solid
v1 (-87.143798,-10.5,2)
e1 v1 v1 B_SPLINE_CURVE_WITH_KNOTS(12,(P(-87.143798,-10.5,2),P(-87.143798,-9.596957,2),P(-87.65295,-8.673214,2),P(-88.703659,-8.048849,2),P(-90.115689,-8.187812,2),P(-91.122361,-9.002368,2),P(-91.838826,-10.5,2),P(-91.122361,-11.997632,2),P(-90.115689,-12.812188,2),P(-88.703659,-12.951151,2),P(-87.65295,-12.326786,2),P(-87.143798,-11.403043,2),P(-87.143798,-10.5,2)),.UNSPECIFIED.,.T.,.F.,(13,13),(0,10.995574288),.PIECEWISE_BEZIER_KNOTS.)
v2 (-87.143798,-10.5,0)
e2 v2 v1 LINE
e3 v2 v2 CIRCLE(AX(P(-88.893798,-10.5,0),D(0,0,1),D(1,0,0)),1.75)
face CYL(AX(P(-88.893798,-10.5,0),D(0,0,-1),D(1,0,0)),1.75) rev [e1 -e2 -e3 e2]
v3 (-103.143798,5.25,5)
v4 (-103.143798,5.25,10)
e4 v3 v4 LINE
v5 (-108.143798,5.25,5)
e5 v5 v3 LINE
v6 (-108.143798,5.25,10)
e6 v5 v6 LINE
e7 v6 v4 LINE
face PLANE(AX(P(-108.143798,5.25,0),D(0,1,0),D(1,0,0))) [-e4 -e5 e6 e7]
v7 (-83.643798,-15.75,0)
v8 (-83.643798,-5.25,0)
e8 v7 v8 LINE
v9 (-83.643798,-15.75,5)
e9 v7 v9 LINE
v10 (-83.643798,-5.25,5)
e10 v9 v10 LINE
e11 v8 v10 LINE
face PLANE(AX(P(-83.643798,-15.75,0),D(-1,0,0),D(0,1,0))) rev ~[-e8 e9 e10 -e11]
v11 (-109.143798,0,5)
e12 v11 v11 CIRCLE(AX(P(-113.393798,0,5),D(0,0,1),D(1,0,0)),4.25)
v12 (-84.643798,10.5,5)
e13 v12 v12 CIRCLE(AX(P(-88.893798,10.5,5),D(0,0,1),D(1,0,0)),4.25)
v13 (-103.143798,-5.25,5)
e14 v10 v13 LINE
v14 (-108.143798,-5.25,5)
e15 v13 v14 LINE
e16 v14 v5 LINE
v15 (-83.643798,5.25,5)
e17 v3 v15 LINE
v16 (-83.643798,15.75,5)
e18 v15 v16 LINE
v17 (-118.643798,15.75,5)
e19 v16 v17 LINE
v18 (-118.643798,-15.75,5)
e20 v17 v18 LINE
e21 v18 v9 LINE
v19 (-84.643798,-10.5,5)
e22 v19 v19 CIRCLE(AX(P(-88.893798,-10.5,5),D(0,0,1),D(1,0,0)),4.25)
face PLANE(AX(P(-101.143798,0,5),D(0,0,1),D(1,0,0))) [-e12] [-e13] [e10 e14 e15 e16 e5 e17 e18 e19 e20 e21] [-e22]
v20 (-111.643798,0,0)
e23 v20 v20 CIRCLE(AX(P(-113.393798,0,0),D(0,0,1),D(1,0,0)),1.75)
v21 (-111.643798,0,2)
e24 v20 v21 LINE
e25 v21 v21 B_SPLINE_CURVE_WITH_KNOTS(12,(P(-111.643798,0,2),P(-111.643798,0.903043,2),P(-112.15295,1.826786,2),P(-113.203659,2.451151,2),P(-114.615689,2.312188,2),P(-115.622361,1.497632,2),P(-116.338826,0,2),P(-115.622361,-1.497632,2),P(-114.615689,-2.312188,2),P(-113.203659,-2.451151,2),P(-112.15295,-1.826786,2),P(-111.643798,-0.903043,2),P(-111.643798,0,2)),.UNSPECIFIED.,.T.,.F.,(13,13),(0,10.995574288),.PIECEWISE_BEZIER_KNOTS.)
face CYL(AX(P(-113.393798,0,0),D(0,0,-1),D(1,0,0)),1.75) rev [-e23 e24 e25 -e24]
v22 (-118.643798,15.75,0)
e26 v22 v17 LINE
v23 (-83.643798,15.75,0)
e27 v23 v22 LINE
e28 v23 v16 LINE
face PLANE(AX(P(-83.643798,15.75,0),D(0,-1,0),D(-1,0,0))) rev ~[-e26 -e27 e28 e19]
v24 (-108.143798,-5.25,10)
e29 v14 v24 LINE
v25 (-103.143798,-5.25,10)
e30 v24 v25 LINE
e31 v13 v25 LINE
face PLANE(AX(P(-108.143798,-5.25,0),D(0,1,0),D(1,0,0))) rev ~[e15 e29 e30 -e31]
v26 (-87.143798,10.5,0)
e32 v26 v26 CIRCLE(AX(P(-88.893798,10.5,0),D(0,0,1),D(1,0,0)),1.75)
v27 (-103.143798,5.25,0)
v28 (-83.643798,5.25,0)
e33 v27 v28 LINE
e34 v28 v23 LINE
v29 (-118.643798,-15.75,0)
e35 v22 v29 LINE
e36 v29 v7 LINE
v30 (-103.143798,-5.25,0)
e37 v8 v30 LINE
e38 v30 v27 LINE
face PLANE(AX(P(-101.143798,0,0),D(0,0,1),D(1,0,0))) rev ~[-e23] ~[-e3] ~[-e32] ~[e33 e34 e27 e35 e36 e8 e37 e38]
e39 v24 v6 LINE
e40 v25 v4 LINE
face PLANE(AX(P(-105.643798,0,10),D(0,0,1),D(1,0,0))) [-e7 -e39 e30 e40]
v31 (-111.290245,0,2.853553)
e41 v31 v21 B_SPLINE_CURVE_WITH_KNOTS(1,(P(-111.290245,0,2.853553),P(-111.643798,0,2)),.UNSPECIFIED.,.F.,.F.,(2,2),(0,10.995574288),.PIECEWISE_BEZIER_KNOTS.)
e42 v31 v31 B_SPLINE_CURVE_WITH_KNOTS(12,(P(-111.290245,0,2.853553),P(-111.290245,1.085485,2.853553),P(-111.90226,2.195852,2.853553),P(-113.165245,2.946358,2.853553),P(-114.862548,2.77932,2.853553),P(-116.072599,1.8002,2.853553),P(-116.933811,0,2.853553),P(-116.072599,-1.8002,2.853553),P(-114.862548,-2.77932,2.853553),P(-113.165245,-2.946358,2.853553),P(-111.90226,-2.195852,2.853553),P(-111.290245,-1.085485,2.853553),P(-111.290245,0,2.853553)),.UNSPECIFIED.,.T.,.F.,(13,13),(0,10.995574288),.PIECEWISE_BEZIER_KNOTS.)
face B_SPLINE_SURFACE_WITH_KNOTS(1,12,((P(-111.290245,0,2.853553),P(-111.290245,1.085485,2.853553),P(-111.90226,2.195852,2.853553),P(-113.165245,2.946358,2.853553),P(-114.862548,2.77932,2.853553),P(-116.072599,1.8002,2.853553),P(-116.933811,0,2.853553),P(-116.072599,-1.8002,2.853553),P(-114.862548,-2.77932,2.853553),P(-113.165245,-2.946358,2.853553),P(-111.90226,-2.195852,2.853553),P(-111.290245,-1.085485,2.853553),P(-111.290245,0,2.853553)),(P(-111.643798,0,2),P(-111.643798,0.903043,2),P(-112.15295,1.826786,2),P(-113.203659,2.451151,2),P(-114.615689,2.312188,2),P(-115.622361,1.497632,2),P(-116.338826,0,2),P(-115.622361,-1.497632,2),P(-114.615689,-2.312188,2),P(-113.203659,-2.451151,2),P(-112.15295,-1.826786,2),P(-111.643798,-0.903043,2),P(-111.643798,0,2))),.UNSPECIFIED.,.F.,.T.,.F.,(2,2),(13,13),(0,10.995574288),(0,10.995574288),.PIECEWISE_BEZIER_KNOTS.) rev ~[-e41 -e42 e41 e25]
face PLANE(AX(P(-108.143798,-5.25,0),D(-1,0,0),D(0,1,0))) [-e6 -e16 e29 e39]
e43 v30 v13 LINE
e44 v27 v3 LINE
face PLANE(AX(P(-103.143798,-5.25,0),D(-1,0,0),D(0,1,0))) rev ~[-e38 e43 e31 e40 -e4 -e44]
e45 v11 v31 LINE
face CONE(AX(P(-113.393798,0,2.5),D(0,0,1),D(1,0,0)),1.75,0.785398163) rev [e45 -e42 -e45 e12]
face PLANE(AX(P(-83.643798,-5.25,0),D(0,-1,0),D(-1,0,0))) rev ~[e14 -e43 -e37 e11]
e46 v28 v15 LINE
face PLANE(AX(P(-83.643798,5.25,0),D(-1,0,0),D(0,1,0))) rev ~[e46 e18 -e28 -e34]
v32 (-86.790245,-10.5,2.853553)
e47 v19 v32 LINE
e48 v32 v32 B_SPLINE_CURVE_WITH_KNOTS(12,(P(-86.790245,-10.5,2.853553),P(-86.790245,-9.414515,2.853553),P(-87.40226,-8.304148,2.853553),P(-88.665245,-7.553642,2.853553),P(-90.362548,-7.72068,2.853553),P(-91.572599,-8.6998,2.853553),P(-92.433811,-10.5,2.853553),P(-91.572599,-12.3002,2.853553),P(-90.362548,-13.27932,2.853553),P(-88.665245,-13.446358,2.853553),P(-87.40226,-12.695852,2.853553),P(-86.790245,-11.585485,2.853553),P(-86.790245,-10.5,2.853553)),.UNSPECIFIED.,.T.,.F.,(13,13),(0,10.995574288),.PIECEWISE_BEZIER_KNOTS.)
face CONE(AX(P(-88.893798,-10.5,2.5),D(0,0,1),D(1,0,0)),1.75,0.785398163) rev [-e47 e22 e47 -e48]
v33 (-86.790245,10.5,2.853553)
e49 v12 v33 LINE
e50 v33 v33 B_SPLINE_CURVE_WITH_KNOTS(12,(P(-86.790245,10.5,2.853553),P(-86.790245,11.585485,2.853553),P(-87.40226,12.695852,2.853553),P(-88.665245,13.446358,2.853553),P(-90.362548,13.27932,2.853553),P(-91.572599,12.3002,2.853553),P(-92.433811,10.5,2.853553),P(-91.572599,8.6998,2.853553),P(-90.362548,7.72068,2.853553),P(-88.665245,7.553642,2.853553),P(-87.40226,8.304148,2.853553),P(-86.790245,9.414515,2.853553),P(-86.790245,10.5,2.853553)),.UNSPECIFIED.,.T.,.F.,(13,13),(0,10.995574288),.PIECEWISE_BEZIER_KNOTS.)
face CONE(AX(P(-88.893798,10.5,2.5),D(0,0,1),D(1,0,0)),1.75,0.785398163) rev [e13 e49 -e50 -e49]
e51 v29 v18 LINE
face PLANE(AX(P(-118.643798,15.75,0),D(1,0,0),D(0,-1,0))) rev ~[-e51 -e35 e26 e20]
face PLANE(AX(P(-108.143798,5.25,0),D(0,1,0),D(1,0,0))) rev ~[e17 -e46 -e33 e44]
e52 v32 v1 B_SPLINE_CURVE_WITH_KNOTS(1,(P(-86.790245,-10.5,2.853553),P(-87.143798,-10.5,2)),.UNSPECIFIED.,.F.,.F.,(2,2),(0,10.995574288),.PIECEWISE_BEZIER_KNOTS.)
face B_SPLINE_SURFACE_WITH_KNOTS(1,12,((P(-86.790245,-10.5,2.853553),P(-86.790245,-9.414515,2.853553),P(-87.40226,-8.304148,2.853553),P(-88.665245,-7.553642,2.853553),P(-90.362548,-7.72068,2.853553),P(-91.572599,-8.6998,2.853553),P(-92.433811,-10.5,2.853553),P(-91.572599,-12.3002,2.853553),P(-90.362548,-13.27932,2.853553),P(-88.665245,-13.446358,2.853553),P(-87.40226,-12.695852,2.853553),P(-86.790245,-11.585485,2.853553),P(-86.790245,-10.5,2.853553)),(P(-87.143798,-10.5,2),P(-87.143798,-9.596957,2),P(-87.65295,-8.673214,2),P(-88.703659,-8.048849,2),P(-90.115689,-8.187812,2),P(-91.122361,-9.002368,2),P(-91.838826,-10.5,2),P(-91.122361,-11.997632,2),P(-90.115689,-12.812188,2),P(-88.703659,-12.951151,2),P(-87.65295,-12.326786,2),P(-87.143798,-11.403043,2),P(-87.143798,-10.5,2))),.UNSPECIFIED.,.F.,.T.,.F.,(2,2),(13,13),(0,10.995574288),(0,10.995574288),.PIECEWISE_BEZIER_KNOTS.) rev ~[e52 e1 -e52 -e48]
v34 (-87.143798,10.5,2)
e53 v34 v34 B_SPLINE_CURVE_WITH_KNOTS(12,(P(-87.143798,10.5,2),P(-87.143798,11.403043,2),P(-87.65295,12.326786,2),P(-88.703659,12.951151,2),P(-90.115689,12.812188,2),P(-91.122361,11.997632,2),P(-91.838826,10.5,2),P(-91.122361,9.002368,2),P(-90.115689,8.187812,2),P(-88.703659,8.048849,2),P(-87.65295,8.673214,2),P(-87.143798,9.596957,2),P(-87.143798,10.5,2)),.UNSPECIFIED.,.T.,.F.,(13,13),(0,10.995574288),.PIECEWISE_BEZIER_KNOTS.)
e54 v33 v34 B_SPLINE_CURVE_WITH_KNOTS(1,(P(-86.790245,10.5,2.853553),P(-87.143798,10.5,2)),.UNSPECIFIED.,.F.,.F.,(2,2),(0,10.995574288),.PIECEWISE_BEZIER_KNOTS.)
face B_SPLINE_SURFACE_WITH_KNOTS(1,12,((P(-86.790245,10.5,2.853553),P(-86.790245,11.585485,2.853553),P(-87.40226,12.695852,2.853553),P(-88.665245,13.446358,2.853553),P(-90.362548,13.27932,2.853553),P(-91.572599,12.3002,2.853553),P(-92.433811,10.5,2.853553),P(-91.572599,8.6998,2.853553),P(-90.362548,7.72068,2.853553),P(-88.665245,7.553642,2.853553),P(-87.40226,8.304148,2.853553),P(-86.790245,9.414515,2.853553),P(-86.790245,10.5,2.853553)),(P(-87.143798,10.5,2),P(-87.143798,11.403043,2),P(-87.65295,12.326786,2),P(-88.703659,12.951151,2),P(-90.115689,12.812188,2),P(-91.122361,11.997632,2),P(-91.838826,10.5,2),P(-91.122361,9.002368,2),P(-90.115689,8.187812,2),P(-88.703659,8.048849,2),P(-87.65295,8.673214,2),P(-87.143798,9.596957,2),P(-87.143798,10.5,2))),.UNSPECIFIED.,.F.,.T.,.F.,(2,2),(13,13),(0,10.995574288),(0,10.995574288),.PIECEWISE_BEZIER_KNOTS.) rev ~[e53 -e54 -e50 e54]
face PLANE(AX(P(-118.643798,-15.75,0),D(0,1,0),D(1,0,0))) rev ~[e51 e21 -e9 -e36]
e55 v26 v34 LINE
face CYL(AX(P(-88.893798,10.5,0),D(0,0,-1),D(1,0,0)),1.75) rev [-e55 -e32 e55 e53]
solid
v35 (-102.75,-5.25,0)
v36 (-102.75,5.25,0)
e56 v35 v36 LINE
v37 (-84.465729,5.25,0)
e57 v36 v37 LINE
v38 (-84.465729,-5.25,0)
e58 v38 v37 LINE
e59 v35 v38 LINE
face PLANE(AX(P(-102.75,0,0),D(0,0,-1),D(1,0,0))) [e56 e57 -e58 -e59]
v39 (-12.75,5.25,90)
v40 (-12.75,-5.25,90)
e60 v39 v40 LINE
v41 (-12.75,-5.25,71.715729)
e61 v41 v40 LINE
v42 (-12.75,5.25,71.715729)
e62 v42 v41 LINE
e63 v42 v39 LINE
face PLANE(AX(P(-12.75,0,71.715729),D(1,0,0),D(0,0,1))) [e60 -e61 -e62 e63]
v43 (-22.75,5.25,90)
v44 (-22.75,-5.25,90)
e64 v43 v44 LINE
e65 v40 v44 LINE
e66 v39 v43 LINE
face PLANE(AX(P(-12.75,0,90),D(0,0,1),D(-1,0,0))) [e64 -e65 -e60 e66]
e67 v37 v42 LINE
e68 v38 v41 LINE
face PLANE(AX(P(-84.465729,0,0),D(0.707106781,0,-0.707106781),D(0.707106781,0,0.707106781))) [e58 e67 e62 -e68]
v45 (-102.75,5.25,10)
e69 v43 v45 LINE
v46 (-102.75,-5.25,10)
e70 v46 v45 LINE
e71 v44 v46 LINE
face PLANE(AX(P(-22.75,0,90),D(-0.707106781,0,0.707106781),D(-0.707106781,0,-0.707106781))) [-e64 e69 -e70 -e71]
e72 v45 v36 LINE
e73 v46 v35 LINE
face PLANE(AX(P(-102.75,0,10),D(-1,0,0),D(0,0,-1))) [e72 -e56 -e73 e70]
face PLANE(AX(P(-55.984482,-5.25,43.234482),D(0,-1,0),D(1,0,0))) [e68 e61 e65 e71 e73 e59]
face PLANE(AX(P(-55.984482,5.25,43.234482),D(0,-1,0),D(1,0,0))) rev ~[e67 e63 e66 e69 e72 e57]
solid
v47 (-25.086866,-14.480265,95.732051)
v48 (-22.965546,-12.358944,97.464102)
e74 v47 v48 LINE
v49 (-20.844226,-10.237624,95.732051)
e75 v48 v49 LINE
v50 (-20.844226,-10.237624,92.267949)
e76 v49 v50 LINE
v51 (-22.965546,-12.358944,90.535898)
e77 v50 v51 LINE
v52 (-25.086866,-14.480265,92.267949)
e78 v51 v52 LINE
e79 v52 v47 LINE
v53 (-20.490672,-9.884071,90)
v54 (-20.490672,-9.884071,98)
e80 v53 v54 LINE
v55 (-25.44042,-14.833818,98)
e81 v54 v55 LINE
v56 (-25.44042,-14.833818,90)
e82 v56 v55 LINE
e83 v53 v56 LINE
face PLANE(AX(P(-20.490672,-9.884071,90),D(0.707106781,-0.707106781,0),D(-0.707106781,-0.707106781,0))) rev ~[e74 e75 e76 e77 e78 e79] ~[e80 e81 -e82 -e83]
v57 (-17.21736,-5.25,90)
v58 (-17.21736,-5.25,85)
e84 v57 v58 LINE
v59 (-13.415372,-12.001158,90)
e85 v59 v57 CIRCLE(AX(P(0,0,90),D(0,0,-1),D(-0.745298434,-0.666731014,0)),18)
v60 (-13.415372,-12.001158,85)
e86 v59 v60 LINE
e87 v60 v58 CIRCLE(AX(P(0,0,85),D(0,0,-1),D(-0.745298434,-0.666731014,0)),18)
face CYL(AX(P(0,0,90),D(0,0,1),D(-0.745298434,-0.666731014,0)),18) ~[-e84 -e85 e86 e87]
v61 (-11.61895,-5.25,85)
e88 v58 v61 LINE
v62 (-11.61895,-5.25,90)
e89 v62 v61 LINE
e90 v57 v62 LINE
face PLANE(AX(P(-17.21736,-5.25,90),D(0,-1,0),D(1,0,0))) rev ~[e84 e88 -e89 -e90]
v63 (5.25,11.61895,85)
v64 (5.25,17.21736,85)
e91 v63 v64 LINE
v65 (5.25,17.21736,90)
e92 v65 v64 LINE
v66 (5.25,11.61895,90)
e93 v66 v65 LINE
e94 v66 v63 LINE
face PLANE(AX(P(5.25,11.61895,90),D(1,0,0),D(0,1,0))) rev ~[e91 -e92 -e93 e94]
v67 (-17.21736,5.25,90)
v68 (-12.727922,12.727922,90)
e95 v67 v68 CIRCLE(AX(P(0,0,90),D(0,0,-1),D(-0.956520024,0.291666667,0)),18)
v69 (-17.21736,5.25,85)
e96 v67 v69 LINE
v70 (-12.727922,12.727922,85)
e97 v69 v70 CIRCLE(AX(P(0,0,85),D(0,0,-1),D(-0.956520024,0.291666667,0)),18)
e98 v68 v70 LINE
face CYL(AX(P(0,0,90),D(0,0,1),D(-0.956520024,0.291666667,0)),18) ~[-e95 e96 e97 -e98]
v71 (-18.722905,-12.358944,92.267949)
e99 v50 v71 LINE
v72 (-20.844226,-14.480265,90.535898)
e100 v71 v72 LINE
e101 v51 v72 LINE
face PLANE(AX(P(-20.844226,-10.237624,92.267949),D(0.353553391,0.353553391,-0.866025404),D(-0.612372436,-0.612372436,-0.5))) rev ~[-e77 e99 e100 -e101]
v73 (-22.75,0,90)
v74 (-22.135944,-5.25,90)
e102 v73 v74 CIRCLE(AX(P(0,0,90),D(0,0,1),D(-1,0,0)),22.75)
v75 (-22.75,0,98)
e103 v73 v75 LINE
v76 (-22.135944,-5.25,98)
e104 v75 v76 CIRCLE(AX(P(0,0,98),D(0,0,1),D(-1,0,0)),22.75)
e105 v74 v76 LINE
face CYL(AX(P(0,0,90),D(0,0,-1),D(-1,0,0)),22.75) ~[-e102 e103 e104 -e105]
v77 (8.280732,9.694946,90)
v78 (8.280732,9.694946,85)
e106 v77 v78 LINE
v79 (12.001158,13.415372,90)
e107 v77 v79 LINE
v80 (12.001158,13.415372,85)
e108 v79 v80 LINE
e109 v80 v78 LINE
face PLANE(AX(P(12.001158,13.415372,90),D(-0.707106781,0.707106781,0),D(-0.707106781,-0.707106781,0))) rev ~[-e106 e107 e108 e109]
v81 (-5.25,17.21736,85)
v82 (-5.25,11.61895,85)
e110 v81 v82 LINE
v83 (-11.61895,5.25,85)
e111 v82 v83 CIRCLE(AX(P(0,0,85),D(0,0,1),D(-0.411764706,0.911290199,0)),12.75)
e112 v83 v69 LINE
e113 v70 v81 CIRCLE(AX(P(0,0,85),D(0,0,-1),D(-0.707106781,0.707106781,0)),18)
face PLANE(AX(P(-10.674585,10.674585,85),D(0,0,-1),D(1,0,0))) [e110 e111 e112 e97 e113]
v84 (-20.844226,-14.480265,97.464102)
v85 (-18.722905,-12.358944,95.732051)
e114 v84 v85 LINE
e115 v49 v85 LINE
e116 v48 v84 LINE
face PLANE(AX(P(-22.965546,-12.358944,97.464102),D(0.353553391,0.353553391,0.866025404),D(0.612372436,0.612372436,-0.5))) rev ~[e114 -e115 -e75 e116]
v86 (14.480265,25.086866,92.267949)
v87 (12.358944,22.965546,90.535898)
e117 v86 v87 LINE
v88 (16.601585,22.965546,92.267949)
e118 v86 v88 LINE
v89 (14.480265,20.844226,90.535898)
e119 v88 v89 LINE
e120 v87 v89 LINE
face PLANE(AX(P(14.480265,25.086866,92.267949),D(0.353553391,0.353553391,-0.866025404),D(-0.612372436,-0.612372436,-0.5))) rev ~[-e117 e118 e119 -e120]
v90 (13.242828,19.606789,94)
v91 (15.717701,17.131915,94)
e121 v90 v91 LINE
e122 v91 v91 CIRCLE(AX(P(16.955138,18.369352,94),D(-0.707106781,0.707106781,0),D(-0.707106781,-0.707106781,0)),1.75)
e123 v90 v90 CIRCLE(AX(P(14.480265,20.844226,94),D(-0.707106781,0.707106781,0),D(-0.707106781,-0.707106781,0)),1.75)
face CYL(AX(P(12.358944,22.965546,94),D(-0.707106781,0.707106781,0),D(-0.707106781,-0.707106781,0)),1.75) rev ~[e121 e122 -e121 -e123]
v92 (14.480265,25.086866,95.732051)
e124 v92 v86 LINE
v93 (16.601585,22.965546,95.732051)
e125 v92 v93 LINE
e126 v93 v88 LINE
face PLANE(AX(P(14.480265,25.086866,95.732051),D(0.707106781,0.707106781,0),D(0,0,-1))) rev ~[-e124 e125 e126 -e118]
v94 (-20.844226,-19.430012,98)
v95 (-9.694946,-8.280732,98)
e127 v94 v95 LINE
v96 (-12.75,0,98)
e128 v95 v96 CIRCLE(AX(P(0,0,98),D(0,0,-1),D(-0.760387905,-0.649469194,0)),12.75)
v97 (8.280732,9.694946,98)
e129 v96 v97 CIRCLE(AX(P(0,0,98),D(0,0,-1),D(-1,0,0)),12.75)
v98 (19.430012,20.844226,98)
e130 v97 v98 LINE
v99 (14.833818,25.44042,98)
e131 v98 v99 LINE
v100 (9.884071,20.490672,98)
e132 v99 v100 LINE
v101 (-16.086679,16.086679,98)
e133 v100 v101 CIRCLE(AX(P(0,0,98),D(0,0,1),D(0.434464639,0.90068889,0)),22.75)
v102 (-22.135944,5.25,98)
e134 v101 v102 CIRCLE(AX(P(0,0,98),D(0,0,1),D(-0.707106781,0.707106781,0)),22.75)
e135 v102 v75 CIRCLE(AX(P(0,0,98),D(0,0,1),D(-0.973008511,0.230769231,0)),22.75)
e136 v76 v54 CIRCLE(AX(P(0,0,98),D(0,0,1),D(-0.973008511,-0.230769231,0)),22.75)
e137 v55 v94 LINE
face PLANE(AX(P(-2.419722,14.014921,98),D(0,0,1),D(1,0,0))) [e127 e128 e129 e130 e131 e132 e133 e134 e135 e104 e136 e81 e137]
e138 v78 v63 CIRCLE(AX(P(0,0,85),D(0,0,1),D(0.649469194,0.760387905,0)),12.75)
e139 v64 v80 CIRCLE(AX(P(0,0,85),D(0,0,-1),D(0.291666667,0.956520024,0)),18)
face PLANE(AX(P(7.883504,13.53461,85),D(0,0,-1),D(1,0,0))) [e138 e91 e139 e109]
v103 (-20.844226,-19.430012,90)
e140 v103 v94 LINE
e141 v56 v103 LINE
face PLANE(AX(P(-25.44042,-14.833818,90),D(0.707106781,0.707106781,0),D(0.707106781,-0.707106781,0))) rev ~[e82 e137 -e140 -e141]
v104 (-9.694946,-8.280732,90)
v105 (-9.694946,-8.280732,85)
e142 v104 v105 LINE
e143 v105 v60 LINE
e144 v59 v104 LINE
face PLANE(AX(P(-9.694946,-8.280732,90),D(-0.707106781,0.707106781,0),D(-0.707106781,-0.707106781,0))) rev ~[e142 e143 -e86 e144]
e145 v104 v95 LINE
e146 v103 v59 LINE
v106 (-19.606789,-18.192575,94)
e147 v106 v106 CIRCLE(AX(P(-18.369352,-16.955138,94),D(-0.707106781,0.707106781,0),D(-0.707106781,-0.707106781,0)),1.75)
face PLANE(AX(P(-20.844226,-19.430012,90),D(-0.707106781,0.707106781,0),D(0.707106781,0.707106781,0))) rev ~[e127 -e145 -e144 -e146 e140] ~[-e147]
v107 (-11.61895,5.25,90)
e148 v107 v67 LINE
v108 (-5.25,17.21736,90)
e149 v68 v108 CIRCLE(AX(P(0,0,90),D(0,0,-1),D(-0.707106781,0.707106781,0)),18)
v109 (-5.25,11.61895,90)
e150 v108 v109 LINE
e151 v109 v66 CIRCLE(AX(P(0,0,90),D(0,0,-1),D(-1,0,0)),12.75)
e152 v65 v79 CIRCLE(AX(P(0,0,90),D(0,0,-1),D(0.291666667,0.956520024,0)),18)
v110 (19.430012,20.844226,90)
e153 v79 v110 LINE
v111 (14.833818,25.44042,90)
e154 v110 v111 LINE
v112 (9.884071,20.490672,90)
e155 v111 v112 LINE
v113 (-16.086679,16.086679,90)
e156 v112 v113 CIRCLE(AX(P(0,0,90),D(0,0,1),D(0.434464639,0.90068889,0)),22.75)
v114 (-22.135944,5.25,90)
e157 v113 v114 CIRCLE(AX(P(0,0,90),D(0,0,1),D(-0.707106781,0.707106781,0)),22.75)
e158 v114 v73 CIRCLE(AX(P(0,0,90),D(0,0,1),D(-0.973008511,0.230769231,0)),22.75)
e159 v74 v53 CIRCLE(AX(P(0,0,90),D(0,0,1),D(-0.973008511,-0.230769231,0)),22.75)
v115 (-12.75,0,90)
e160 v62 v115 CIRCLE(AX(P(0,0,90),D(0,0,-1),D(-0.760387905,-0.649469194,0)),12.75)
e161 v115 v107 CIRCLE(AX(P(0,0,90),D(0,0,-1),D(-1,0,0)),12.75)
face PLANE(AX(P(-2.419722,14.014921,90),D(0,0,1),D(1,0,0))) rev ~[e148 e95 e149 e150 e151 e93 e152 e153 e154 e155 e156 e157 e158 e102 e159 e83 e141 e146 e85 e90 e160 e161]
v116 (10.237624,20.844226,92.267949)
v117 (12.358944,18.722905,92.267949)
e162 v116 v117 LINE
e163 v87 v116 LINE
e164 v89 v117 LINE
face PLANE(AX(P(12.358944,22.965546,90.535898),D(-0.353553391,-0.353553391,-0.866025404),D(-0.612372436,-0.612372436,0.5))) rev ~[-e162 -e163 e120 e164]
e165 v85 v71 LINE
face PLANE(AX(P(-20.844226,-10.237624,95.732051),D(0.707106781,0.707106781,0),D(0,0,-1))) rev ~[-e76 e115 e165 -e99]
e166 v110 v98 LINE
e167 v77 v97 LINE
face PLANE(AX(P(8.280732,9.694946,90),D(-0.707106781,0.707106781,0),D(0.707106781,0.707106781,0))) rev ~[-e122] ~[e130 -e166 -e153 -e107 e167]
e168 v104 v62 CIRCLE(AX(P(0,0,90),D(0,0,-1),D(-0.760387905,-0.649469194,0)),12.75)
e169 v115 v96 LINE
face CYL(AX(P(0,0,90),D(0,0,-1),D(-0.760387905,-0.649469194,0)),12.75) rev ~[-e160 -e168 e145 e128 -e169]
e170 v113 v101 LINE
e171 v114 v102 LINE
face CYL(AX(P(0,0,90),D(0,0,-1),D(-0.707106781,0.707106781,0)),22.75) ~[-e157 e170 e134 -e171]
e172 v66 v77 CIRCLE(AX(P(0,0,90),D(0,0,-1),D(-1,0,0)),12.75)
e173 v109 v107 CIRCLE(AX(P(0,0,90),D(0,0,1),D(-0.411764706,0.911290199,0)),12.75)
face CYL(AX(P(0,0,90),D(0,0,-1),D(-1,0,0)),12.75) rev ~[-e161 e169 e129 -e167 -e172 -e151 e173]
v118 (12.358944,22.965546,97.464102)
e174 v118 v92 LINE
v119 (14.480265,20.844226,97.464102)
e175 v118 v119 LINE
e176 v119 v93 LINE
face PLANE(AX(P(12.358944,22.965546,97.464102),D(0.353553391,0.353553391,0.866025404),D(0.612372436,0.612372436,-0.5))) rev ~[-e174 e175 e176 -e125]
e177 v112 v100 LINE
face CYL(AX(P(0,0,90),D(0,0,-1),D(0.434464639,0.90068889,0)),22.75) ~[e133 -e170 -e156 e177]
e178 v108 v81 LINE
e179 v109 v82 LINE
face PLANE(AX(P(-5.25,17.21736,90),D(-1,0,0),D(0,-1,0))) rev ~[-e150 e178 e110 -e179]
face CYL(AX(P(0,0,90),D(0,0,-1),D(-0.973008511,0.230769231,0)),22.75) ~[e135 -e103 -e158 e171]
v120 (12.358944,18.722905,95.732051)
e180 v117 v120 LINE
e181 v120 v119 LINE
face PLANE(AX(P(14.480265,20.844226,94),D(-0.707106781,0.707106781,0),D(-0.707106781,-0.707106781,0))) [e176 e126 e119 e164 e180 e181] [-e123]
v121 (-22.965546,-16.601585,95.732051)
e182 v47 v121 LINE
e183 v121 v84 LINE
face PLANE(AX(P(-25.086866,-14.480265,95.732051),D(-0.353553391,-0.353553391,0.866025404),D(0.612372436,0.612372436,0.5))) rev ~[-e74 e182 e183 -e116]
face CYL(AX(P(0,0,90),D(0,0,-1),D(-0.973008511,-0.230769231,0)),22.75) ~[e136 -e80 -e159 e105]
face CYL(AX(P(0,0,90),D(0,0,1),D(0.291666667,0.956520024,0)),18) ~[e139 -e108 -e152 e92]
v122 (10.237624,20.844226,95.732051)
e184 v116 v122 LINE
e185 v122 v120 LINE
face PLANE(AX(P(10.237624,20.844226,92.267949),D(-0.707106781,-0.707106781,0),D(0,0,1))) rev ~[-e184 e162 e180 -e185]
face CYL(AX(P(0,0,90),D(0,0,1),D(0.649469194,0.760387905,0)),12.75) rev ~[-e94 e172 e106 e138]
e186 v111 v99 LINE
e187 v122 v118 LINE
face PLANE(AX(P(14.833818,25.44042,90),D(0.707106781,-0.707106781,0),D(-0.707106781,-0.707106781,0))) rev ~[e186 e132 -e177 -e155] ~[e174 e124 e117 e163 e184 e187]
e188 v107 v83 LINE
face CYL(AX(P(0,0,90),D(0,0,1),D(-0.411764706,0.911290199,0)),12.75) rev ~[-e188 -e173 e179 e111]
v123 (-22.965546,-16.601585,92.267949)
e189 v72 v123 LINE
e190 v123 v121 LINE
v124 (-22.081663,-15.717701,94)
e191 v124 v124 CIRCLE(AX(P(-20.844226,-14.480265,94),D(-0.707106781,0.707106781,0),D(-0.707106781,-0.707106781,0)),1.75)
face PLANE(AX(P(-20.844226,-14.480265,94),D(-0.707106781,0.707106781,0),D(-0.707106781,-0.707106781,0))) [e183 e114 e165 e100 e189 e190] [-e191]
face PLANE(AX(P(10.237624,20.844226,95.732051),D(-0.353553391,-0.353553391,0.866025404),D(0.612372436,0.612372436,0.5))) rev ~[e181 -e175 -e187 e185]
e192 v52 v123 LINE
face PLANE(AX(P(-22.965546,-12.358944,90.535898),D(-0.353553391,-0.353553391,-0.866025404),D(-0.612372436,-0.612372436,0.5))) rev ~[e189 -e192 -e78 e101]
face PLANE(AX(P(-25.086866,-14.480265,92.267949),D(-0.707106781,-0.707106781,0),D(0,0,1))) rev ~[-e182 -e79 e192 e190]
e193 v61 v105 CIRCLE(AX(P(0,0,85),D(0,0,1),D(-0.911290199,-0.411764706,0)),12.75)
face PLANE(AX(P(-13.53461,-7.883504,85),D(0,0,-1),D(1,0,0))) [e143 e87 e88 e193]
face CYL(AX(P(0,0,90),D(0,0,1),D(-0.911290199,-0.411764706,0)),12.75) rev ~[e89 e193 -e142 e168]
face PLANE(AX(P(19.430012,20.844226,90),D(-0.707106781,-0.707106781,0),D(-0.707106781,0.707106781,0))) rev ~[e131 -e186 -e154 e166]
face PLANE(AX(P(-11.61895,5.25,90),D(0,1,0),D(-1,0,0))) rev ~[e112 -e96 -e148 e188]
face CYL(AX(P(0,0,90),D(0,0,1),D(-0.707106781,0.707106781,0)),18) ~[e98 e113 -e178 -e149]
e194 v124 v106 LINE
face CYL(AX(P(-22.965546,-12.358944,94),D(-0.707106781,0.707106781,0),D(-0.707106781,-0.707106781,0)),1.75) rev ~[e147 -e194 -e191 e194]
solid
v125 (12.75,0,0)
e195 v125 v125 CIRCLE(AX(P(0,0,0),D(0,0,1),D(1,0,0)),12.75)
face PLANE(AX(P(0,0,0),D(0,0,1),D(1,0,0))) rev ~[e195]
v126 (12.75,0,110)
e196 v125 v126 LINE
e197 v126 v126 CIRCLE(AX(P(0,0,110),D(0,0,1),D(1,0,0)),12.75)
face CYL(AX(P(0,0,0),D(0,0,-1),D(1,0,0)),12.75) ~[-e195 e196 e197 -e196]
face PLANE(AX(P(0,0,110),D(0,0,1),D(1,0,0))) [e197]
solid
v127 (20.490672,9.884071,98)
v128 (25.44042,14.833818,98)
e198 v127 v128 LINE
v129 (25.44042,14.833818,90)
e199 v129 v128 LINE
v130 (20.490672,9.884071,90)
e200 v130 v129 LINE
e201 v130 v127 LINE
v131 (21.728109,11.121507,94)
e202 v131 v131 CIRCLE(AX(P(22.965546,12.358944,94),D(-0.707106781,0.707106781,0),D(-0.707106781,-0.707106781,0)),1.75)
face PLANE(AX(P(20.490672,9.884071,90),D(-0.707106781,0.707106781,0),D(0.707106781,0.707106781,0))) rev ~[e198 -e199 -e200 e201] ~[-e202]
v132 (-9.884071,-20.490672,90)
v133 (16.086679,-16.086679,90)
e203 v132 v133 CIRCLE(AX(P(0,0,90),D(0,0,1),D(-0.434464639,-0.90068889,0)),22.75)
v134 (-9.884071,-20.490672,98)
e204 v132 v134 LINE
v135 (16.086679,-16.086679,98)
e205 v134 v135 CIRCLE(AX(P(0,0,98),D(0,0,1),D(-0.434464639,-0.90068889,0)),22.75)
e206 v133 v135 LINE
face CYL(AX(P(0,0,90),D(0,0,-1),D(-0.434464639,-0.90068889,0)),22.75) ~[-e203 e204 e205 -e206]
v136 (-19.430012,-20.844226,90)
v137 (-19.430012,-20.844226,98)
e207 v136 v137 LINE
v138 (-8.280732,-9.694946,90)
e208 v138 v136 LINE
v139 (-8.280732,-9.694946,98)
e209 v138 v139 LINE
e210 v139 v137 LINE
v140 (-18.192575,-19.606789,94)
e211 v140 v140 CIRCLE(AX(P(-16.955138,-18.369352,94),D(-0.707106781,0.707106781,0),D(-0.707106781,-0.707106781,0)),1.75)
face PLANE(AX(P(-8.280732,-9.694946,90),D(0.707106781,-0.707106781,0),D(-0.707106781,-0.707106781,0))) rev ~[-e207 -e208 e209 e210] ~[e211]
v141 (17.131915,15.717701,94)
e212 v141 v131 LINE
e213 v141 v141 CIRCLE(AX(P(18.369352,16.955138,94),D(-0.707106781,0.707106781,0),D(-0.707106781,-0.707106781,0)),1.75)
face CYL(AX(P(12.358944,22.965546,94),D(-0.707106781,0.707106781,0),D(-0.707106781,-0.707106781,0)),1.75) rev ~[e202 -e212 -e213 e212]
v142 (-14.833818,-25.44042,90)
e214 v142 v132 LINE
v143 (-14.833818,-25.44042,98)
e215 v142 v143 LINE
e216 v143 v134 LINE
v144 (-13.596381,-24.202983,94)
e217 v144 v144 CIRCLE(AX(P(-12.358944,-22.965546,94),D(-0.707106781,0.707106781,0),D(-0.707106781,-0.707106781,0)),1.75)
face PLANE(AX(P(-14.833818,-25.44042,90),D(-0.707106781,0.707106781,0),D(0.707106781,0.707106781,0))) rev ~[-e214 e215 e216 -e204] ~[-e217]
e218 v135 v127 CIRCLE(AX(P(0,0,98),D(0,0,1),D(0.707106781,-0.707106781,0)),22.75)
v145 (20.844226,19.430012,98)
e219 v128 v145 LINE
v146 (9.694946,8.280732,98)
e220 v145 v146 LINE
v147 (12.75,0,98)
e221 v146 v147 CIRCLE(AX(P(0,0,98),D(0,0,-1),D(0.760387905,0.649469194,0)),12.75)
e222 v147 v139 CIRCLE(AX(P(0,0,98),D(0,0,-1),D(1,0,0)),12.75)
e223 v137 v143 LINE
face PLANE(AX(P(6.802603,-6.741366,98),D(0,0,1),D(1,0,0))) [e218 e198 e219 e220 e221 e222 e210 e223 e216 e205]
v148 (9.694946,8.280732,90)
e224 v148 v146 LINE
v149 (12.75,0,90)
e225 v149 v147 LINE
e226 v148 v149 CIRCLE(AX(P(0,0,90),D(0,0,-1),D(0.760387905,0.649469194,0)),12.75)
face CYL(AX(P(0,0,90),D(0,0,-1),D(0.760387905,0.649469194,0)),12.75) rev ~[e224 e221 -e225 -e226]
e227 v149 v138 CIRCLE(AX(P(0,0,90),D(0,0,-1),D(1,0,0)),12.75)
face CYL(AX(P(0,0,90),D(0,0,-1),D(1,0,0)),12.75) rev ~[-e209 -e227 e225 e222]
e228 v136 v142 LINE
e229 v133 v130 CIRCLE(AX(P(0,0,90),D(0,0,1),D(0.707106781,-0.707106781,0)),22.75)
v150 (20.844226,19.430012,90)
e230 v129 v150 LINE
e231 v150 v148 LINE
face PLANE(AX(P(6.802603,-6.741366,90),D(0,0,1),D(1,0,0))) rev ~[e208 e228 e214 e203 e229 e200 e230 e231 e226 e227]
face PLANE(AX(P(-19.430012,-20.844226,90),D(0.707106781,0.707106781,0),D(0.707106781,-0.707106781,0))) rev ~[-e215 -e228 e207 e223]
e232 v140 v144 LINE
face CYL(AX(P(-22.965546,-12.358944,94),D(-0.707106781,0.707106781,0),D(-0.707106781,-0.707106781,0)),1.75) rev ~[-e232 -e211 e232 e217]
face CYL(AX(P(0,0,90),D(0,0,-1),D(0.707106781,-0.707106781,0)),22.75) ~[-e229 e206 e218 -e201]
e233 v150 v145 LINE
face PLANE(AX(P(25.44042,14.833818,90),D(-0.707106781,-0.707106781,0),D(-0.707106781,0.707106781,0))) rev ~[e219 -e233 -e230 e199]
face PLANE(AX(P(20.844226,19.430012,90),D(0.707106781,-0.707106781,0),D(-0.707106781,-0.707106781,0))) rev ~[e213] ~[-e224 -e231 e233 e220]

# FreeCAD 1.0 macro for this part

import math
import FreeCAD as App
import Part
import Sketcher
Q = App.Units.Quantity


def edges_at(feature, points):
    """Names of the edges that pass closest to the given points."""
    edges = feature.Shape.Edges
    near = lambda p: min(range(len(edges)), key=lambda i: edges[i].distToShape(Part.Vertex(*p))[0])
    return sorted({f"Edge{near(p) + 1}" for p in points})


def add_polygon(sketch, points):
    """Adds a closed chain of lines whose ends are joined by coincident constraints."""
    first, n = sketch.GeometryCount, len(points)
    for a, b in zip(points, points[1:] + points[:1]):
        sketch.addGeometry(Part.LineSegment(App.Vector(*a, 0), App.Vector(*b, 0)), False)
    for i in range(n):
        sketch.addConstraint(Sketcher.Constraint("Coincident", first + i, 2, first + (i + 1) % n, 1))

doc = App.newDocument("Part")
body = doc.addObject("PartDesign::Body", "Body")

# Sketch on XY plane
sketch1 = doc.addObject("Sketcher::SketchObject", "Sketch")
body.addObject(sketch1)
sketch1.AttachmentSupport = (doc.XY_Plane, [""])
sketch1.MapMode = "FlatFace"
add_polygon(sketch1, [(-83.6, 5.2), (-83.6, 15.8), (-118.6, 15.8), (-118.6, -15.8), (-83.6, -15.8), (-83.6, -5.2), (-108.1, -5.2), (-108.1, 5.2)])  # lines 0-7
sketch1.addGeometry(Part.Circle(App.Vector(-113.4, 0, 0), App.Vector(0, 0, 1), 1.8), False)  # 8
sketch1.addGeometry(Part.Circle(App.Vector(-88.9, -10.5, 0), App.Vector(0, 0, 1), 1.8), False)  # 9
sketch1.addGeometry(Part.Circle(App.Vector(-88.9, 10.5, 0), App.Vector(0, 0, 1), 1.8), False)  # 10
sketch1.addConstraint([
    Sketcher.Constraint("Vertical", 0),
    Sketcher.Constraint("Horizontal", 1),
    Sketcher.Constraint("Vertical", 2),
    Sketcher.Constraint("Horizontal", 3),
    Sketcher.Constraint("Vertical", 4),
    Sketcher.Constraint("Horizontal", 5),
    Sketcher.Constraint("Vertical", 6),
    Sketcher.Constraint("Horizontal", 7),
    Sketcher.Constraint("Equal", 8, 9),
    Sketcher.Constraint("Equal", 9, 10),
    Sketcher.Constraint("Symmetric", 9, 3, 10, 3, -1),
    Sketcher.Constraint("Symmetric", 0, 2, 3, 2, -1),
    Sketcher.Constraint("PointOnObject", 8, 3, -1),
    Sketcher.Constraint("Equal", 0, 4),
    Sketcher.Constraint("Equal", 4, 6),
    Sketcher.Constraint("Diameter", 8, 3.5),
    Sketcher.Constraint("DistanceX", 1, 2, 1, 1, 35.0),
    Sketcher.Constraint("DistanceX", 5, 2, 5, 1, 24.5),
    Sketcher.Constraint("DistanceY", 0, 1, 0, 2, 10.5),
    Sketcher.Constraint("DistanceY", 9, 3, 10, 3, 21.0),
    Sketcher.Constraint("DistanceX", 8, 3, 9, 3, 24.5),
    Sketcher.Constraint("DistanceX", 10, 3, 0, 2, 5.25),
    Sketcher.Constraint("DistanceX", 8, 3, -1, 1, 113.393798),
])
pad1 = doc.addObject("PartDesign::Pad", "Pad")
body.addObject(pad1)
pad1.Profile = sketch1
pad1.Length = 5

# Sketch on XY plane
sketch2 = doc.addObject("Sketcher::SketchObject", "Sketch001")
body.addObject(sketch2)
sketch2.AttachmentSupport = (doc.XY_Plane, [""])
sketch2.MapMode = "FlatFace"
add_polygon(sketch2, [(-108, 5), (-108, -5), (-103, -5), (-103, 5)])  # lines 0-3
sketch2.addConstraint([
    Sketcher.Constraint("Vertical", 0),
    Sketcher.Constraint("Horizontal", 1),
    Sketcher.Constraint("Vertical", 2),
    Sketcher.Constraint("Horizontal", 3),
    Sketcher.Constraint("DistanceX", 1, 1, 1, 2, 5.0),
    Sketcher.Constraint("DistanceY", 0, 2, 0, 1, 10.5),
    Sketcher.Constraint("DistanceY", 0, 2, -1, 1, 5.25),
    Sketcher.Constraint("DistanceX", 0, 2, -1, 1, 108.143798),
])
pad2 = doc.addObject("PartDesign::Pad", "Pad001")
body.addObject(pad2)
pad2.Profile = sketch2
pad2.Length = 10
doc.recompute()

chamfer = doc.addObject("PartDesign::Chamfer", "Chamfer")
body.addObject(chamfer)
chamfer.Base = (pad2, edges_at(pad2, [(-115.144, 0, 5), (-90.644, 10.5, 5), (-90.644, -10.5, 5)]))
chamfer.Size = 2.5
doc.recompute()

chamfer2 = doc.addObject("PartDesign::Chamfer", "Chamfer001")
body.addObject(chamfer2)
chamfer2.Base = (chamfer, edges_at(chamfer, [(-115.144, 0, 2.5), (-90.644, 10.5, 2.5), (-90.644, -10.5, 2.5)]))
chamfer2.Size = 0.5
body2 = doc.addObject("PartDesign::Body", "Body001")

# Sketch on XY plane
sketch3 = doc.addObject("Sketcher::SketchObject", "Sketch002")
body2.addObject(sketch3)
sketch3.AttachmentSupport = (doc.getObject("XY_Plane001"), [""])
sketch3.MapMode = "FlatFace"
sketch3.addGeometry(Part.Circle(App.Vector(0, 0, 0), App.Vector(0, 0, 1), 13), False)
sketch3.addConstraint([
    Sketcher.Constraint("Coincident", 0, 3, -1, 1),
    Sketcher.Constraint("Diameter", 0, 25.5),
])
pad3 = doc.addObject("PartDesign::Pad", "Pad002")
body2.addObject(pad3)
pad3.Profile = sketch3
pad3.Length = 110
body3 = doc.addObject("PartDesign::Body", "Body002")

# Sketch on XZ plane
sketch4 = doc.addObject("Sketcher::SketchObject", "Sketch003")
body3.addObject(sketch4)
sketch4.AttachmentSupport = (doc.getObject("XZ_Plane002"), [""])
sketch4.MapMode = "FlatFace"
add_polygon(sketch4, [(-84, 0), (-13, 72), (-13, 90), (-23, 90), (-103, 10), (-103, 0)])  # lines 0-5
sketch4.addConstraint([
    Sketcher.Constraint("Vertical", 1),
    Sketcher.Constraint("Horizontal", 2),
    Sketcher.Constraint("Vertical", 4),
    Sketcher.Constraint("Horizontal", 5),
    Sketcher.Constraint("PointOnObject", 4, 2, -1),
    Sketcher.Constraint("Parallel", 0, 3),
    Sketcher.Constraint("Equal", 5, 1),
    Sketcher.Constraint("Equal", 2, 4),
    Sketcher.Constraint("DistanceX", 2, 2, 2, 1, 10.0),
    Sketcher.Constraint("DistanceY", -1, 1, 1, 2, 90.0),
    Sketcher.Constraint("DistanceX", 0, 2, -1, 1, 12.75),
    Sketcher.Constraint("DistanceX", 5, 1, 5, 2, 18.284271),
])
pad4 = doc.addObject("PartDesign::Pad", "Pad003")
body3.addObject(pad4)
pad4.Profile = sketch4
pad4.Length = 10.5
pad4.Midplane = True
body4 = doc.addObject("PartDesign::Body", "Body003")

# Sketch on XY plane
sketch5 = doc.addObject("Sketcher::SketchObject", "Sketch004")
body4.addObject(sketch5)
sketch5.AttachmentSupport = (doc.getObject("XY_Plane003"), [""])
sketch5.MapMode = "FlatFace"
sketch5.AttachmentOffset = App.Placement(App.Vector(0, 0, 90), App.Rotation())
sketch5.addGeometry([
    Part.ArcOfCircle(Part.Circle(App.Vector(0, 0, 0), App.Vector(0, 0, 1), 12.8), math.radians(49), math.radians(180)),  # 0
    Part.LineSegment(App.Vector(8.3, 9.7, 0), App.Vector(19.4, 20.8, 0)),  # 1
    Part.LineSegment(App.Vector(19.4, 20.8, 0), App.Vector(14.8, 25.4, 0)),  # 2
    Part.LineSegment(App.Vector(14.8, 25.4, 0), App.Vector(9.9, 20.5, 0)),  # 3
    Part.ArcOfCircle(Part.Circle(App.Vector(0, 0, 0), App.Vector(0, 0, 1), 22.8), math.radians(64), math.radians(135)),  # 4
    Part.ArcOfCircle(Part.Circle(App.Vector(0, 0, 0), App.Vector(0, 0, 1), 22.7), math.radians(135), math.radians(167)),  # 5
    Part.ArcOfCircle(Part.Circle(App.Vector(0, 0, 0), App.Vector(0, 0, 1), 22.8), math.radians(166.66), math.radians(180)),  # 6
    Part.ArcOfCircle(Part.Circle(App.Vector(0, 0, 0), App.Vector(0, 0, 1), 22.8), math.radians(-180), math.radians(-166.66)),  # 7
    Part.ArcOfCircle(Part.Circle(App.Vector(0, 0, 0), App.Vector(0, 0, 1), 22.7), math.radians(-166.66), math.radians(-154.25)),  # 8
    Part.LineSegment(App.Vector(-20.5, -9.9, 0), App.Vector(-25.4, -14.8, 0)),  # 9
    Part.LineSegment(App.Vector(-25.4, -14.8, 0), App.Vector(-20.8, -19.4, 0)),  # 10
    Part.LineSegment(App.Vector(-20.8, -19.4, 0), App.Vector(-9.7, -8.3, 0)),  # 11
    Part.ArcOfCircle(Part.Circle(App.Vector(0, 0, 0), App.Vector(0, 0, 1), 12.8), math.radians(180), math.radians(221)),  # 12
], False)
sketch5.addConstraint([
    Sketcher.Constraint("Coincident", 0, 1, 1, 1),
    Sketcher.Constraint("Coincident", 1, 2, 2, 1),
    Sketcher.Constraint("Coincident", 2, 2, 3, 1),
    Sketcher.Constraint("Coincident", 3, 2, 4, 1),
    Sketcher.Constraint("Tangent", 4, 2, 5, 1),
    Sketcher.Constraint("Tangent", 5, 2, 6, 1),
    Sketcher.Constraint("Tangent", 6, 2, 7, 1),
    Sketcher.Constraint("Tangent", 7, 2, 8, 1),
    Sketcher.Constraint("Coincident", 8, 2, 9, 1),
    Sketcher.Constraint("Coincident", 9, 2, 10, 1),
    Sketcher.Constraint("Coincident", 10, 2, 11, 1),
    Sketcher.Constraint("Coincident", 11, 2, 12, 2),
    Sketcher.Constraint("Tangent", 12, 1, 0, 2),
    Sketcher.Constraint("Coincident", 0, 3, -1, 1),
    Sketcher.Constraint("Coincident", 4, 3, -1, 1),
    Sketcher.Constraint("Coincident", 6, 3, -1, 1),
    Sketcher.Constraint("Coincident", 8, 3, -1, 1),
    Sketcher.Constraint("Equal", 0, 12),
    Sketcher.Constraint("PointOnObject", 6, 2, -1),
    Sketcher.Constraint("PointOnObject", 12, 1, -1),
    Sketcher.Constraint("Perpendicular", 1, 2),
    Sketcher.Constraint("Perpendicular", 2, 3),
    Sketcher.Constraint("Parallel", 3, 9),
    Sketcher.Constraint("Perpendicular", 9, 10),
    Sketcher.Constraint("Perpendicular", 10, 11),
    Sketcher.Constraint("Vertical", 5, 2, 7, 2),
    Sketcher.Constraint("Equal", 3, 9),
    Sketcher.Constraint("Equal", 2, 10),
    Sketcher.Constraint("Equal", 1, 11),
    Sketcher.Constraint("Angle", 1, Q("45 deg")),
    Sketcher.Constraint("Radius", 0, 12.75),
    Sketcher.Constraint("Radius", 4, 22.75),
    Sketcher.Constraint("Distance", 3, 7.0),
    Sketcher.Constraint("Distance", 2, 6.5),
    Sketcher.Constraint("DistanceY", 7, 2, 5, 2, 10.5),
    Sketcher.Constraint("DistanceX", -1, 1, 2, 2, 14.833818),
    Sketcher.Constraint("DistanceX", 4, 2, -1, 1, 16.086679),
])
pad5 = doc.addObject("PartDesign::Pad", "Pad004")
body4.addObject(pad5)
pad5.Profile = sketch5
pad5.Length = 8

# Sketch on XY plane
sketch6 = doc.addObject("Sketcher::SketchObject", "Sketch005")
body4.addObject(sketch6)
sketch6.AttachmentSupport = (doc.getObject("XY_Plane003"), [""])
sketch6.MapMode = "FlatFace"
sketch6.AttachmentOffset = App.Placement(App.Vector(0, 0, 90), App.Rotation())
sketch6.addGeometry([
    Part.ArcOfCircle(Part.Circle(App.Vector(0, 0, 0), App.Vector(0, 0, 1), 12.7), math.radians(-155.68), math.radians(-139.5)),  # 0
    Part.LineSegment(App.Vector(-9.7, -8.3, 0), App.Vector(-13.4, -12, 0)),  # 1
    Part.ArcOfCircle(Part.Circle(App.Vector(0, 0, 0), App.Vector(0, 0, 1), 18), math.radians(-163), math.radians(-138)),  # 2
    Part.LineSegment(App.Vector(-17.2, -5.2, 0), App.Vector(-11.6, -5.2, 0)),  # 3
    Part.LineSegment(App.Vector(-11.6, 5.2, 0), App.Vector(-17.2, 5.2, 0)),  # 4
    Part.ArcOfCircle(Part.Circle(App.Vector(0, 0, 0), App.Vector(0, 0, 1), 18), math.radians(135), math.radians(163)),  # 5
    Part.ArcOfCircle(Part.Circle(App.Vector(0, 0, 0), App.Vector(0, 0, 1), 18), math.radians(107), math.radians(135)),  # 6
    Part.LineSegment(App.Vector(-5.2, 17.2, 0), App.Vector(-5.2, 11.6, 0)),  # 7
    Part.ArcOfCircle(Part.Circle(App.Vector(0, 0, 0), App.Vector(0, 0, 1), 12.8), math.radians(114), math.radians(156)),  # 8
    Part.ArcOfCircle(Part.Circle(App.Vector(0, 0, 0), App.Vector(0, 0, 1), 12.7), math.radians(49.5), math.radians(65.68)),  # 9
    Part.LineSegment(App.Vector(5.2, 11.6, 0), App.Vector(5.2, 17.2, 0)),  # 10
    Part.ArcOfCircle(Part.Circle(App.Vector(0, 0, 0), App.Vector(0, 0, 1), 18), math.radians(48), math.radians(73)),  # 11
    Part.LineSegment(App.Vector(12, 13.4, 0), App.Vector(8.3, 9.7, 0)),  # 12
], False)
sketch6.addConstraint([
    Sketcher.Constraint("Coincident", 0, 2, 1, 1),
    Sketcher.Constraint("Coincident", 1, 2, 2, 2),
    Sketcher.Constraint("Coincident", 2, 1, 3, 1),
    Sketcher.Constraint("Coincident", 3, 2, 0, 1),
    Sketcher.Constraint("Coincident", 4, 2, 5, 2),
    Sketcher.Constraint("Tangent", 5, 1, 6, 2),
    Sketcher.Constraint("Coincident", 6, 1, 7, 1),
    Sketcher.Constraint("Coincident", 7, 2, 8, 1),
    Sketcher.Constraint("Coincident", 8, 2, 4, 1),
    Sketcher.Constraint("Coincident", 9, 2, 10, 1),
    Sketcher.Constraint("Coincident", 10, 2, 11, 2),
    Sketcher.Constraint("Coincident", 11, 1, 12, 1),
    Sketcher.Constraint("Coincident", 12, 2, 9, 1),
    Sketcher.Constraint("Horizontal", 3),
    Sketcher.Constraint("Horizontal", 4),
    Sketcher.Constraint("Vertical", 7),
    Sketcher.Constraint("Vertical", 10),
    Sketcher.Constraint("Coincident", 0, 3, -1, 1),
    Sketcher.Constraint("Coincident", 2, 3, -1, 1),
    Sketcher.Constraint("Coincident", 5, 3, -1, 1),
    Sketcher.Constraint("Coincident", 8, 3, -1, 1),
    Sketcher.Constraint("Coincident", 9, 3, -1, 1),
    Sketcher.Constraint("Coincident", 11, 3, -1, 1),
    Sketcher.Constraint("Equal", 2, 5),
    Sketcher.Constraint("Equal", 5, 6),
    Sketcher.Constraint("Equal", 0, 8),
    Sketcher.Constraint("Equal", 8, 9),
    Sketcher.Constraint("Equal", 6, 11),
    Sketcher.Constraint("Parallel", 1, 12),
    Sketcher.Constraint("Horizontal", 7, 2, 9, 2),
    Sketcher.Constraint("Vertical", 2, 1, 4, 2),
    Sketcher.Constraint("Equal", 4, 7),
    Sketcher.Constraint("Equal", 1, 12),
    Sketcher.Constraint("Radius", 2, 18.0),
    Sketcher.Constraint("Angle", 1, Q("-135 deg")),
    Sketcher.Constraint("Radius", 0, 12.75),
    Sketcher.Constraint("DistanceY", 2, 1, 4, 2, 10.5),
    Sketcher.Constraint("DistanceX", 1, 2, -1, 1, 13.415372),
    Sketcher.Constraint("DistanceX", 4, 2, 5, 1, 4.489438),
])
pad6 = doc.addObject("PartDesign::Pad", "Pad005")
body4.addObject(pad6)
pad6.Profile = sketch6
pad6.Length = 5
pad6.Reversed = True

# Sketch on an angled plane
sketch7 = doc.addObject("Sketcher::SketchObject", "Sketch006")
body4.addObject(sketch7)
sketch7.Placement = App.Placement(App.Vector(-5.303301, 5.303301, 0), App.Rotation(App.Vector(-0.707106781, -0.707106781, 0), App.Vector(0, 0, 0.999999999), App.Vector(-0.707106781, 0.707106781, 0), "ZXY"))
add_polygon(sketch7, [(-28, 95.7), (-28, 92.3), (-25, 90.5), (-22, 92.3), (-22, 95.7), (-25, 97.5)])  # lines 0-5
sketch7.addGeometry(Part.Circle(App.Vector(-25, 94, 0), App.Vector(0, 0, 1), 1.8), False)  # 6
add_polygon(sketch7, [(22, 95.7), (22, 92.3), (25, 90.5), (28, 92.3), (28, 95.7), (25, 97.5)])  # lines 7-12
sketch7.addGeometry(Part.Circle(App.Vector(25, 94, 0), App.Vector(0, 0, 1), 1.8), False)  # 13
sketch7.addConstraint([
    Sketcher.Constraint("Vertical", 0),
    Sketcher.Constraint("Vertical", 3),
    Sketcher.Constraint("Vertical", 7),
    Sketcher.Constraint("Vertical", 10),
    Sketcher.Constraint("Equal", 6, 13),
    Sketcher.Constraint("Symmetric", 6, 3, 13, 3, -2),
    Sketcher.Constraint("Symmetric", 2, 2, 7, 2, -2),
    Sketcher.Constraint("Symmetric", 1, 2, 8, 2, -2),
    Sketcher.Constraint("Symmetric", 0, 2, 9, 2, -2),
    Sketcher.Constraint("Symmetric", 4, 2, 11, 2, -2),
    Sketcher.Constraint("Parallel", 1, 4),
    Sketcher.Constraint("Parallel", 2, 5),
    Sketcher.Constraint("Parallel", 4, 8),
    Sketcher.Constraint("Parallel", 8, 11),
    Sketcher.Constraint("Parallel", 9, 12),
    Sketcher.Constraint("Horizontal", 0, 2, 2, 2),
    Sketcher.Constraint("Horizontal", 3, 2, 5, 2),
    Sketcher.Constraint("Vertical", 6, 3, 1, 2),
    Sketcher.Constraint("Diameter", 6, 3.5),
    Sketcher.Constraint("Angle", 1, Q("-30 deg")),
    Sketcher.Constraint("DistanceY", -1, 1, 6, 3, 94.0),
    Sketcher.Constraint("DistanceX", 0, 2, 6, 3, 3.0),
    Sketcher.Constraint("DistanceY", 0, 2, 0, 1, 3.464102),
    Sketcher.Constraint("DistanceY", -1, 1, 1, 2, 90.535898),
    Sketcher.Constraint("DistanceX", 6, 3, -1, 1, 24.978187),
])
pocket1 = doc.addObject("PartDesign::Pocket", "Pocket")
body4.addObject(pocket1)
pocket1.Profile = sketch7
pocket1.Length = 3
body5 = doc.addObject("PartDesign::Body", "Body004")

# Sketch on XY plane
sketch8 = doc.addObject("Sketcher::SketchObject", "Sketch007")
body5.addObject(sketch8)
sketch8.AttachmentSupport = (doc.getObject("XY_Plane004"), [""])
sketch8.MapMode = "FlatFace"
sketch8.AttachmentOffset = App.Placement(App.Vector(0, 0, 90), App.Rotation())
sketch8.addGeometry([
    Part.ArcOfCircle(Part.Circle(App.Vector(0, 0, 0), App.Vector(0, 0, 1), 13), math.radians(0), math.radians(41)),  # 0
    Part.ArcOfCircle(Part.Circle(App.Vector(0, 0, 0), App.Vector(0, 0, 1), 13), math.radians(-131), math.radians(0)),  # 1
    Part.LineSegment(App.Vector(-8, -10, 0), App.Vector(-19, -21, 0)),  # 2
    Part.LineSegment(App.Vector(-19, -21, 0), App.Vector(-15, -25, 0)),  # 3
    Part.LineSegment(App.Vector(-15, -25, 0), App.Vector(-10, -20, 0)),  # 4
    Part.ArcOfCircle(Part.Circle(App.Vector(0, 0, 0), App.Vector(0, 0, 1), 23), math.radians(-116), math.radians(-45)),  # 5
    Part.ArcOfCircle(Part.Circle(App.Vector(0, 0, 0), App.Vector(0, 0, 1), 23), math.radians(-45), math.radians(26)),  # 6
    Part.LineSegment(App.Vector(20, 10, 0), App.Vector(25, 15, 0)),  # 7
    Part.LineSegment(App.Vector(25, 15, 0), App.Vector(21, 19, 0)),  # 8
    Part.LineSegment(App.Vector(21, 19, 0), App.Vector(10, 8, 0)),  # 9
], False)
sketch8.addConstraint([
    Sketcher.Constraint("Tangent", 0, 1, 1, 2),
    Sketcher.Constraint("Coincident", 1, 1, 2, 1),
    Sketcher.Constraint("Coincident", 2, 2, 3, 1),
    Sketcher.Constraint("Coincident", 3, 2, 4, 1),
    Sketcher.Constraint("Coincident", 4, 2, 5, 1),
    Sketcher.Constraint("Tangent", 5, 2, 6, 1),
    Sketcher.Constraint("Coincident", 6, 2, 7, 1),
    Sketcher.Constraint("Coincident", 7, 2, 8, 1),
    Sketcher.Constraint("Coincident", 8, 2, 9, 1),
    Sketcher.Constraint("Coincident", 9, 2, 0, 2),
    Sketcher.Constraint("Coincident", 0, 3, -1, 1),
    Sketcher.Constraint("Coincident", 5, 3, -1, 1),
    Sketcher.Constraint("Equal", 0, 1),
    Sketcher.Constraint("Equal", 5, 6),
    Sketcher.Constraint("PointOnObject", 0, 1, -1),
    Sketcher.Constraint("Perpendicular", 2, 3),
    Sketcher.Constraint("Perpendicular", 3, 4),
    Sketcher.Constraint("Parallel", 4, 7),
    Sketcher.Constraint("Perpendicular", 7, 8),
    Sketcher.Constraint("Perpendicular", 8, 9),
    Sketcher.Constraint("Equal", 4, 7),
    Sketcher.Constraint("Equal", 3, 8),
    Sketcher.Constraint("Equal", 2, 9),
    Sketcher.Constraint("Angle", 2, Q("-135 deg")),
    Sketcher.Constraint("Radius", 0, 12.75),
    Sketcher.Constraint("Radius", 5, 22.75),
    Sketcher.Constraint("Distance", 4, 7.0),
    Sketcher.Constraint("Distance", 3, 6.5),
    Sketcher.Constraint("DistanceX", 3, 2, -1, 1, 14.833818),
    Sketcher.Constraint("DistanceX", -1, 1, 5, 2, 16.086679),
])
pad7 = doc.addObject("PartDesign::Pad", "Pad006")
body5.addObject(pad7)
pad7.Profile = sketch8
pad7.Length = 8
body6 = doc.addObject("PartDesign::Body", "Body005")
body6.AllowCompound = True

# Sketch on an angled plane
sketch9 = doc.addObject("Sketcher::SketchObject", "Sketch008")
body6.addObject(sketch9)
sketch9.Placement = App.Placement(App.Vector(-5.303301, 5.303301, 0), App.Rotation(App.Vector(-0.707106781, -0.707106781, 0), App.Vector(0, 0, 0.999999999), App.Vector(-0.707106781, 0.707106781, 0), "ZXY"))
sketch9.addGeometry([
    Part.Circle(App.Vector(-25, 94, 0), App.Vector(0, 0, 1), 1.8),
    Part.Circle(App.Vector(25, 94, 0), App.Vector(0, 0, 1), 1.8),
], False)
sketch9.addConstraint([
    Sketcher.Constraint("Equal", 0, 1),
    Sketcher.Constraint("Symmetric", 0, 3, 1, 3, -2),
    Sketcher.Constraint("Diameter", 0, 3.5),
    Sketcher.Constraint("DistanceY", -1, 1, 0, 3, 94.0),
    Sketcher.Constraint("DistanceX", 0, 3, -1, 1, 24.978187),
])
pad8 = doc.addObject("PartDesign::Pad", "Pad007")
body6.addObject(pad8)
pad8.Profile = sketch9
pad8.Length = 43.479187
pad8.Reversed = True
doc.recompute()

body7 = doc.addObject("PartDesign::Body", "Body006")
body7.BaseFeature = body6
boolean = doc.addObject("PartDesign::Boolean", "Boolean")
body4.addObject(boolean)
boolean.Type = "Cut"
boolean.addObjects([body7])
doc.recompute()

boolean2 = doc.addObject("PartDesign::Boolean", "Boolean001")
body5.addObject(boolean2)
boolean2.Type = "Cut"
boolean2.addObjects([body6])

doc.recompute()
